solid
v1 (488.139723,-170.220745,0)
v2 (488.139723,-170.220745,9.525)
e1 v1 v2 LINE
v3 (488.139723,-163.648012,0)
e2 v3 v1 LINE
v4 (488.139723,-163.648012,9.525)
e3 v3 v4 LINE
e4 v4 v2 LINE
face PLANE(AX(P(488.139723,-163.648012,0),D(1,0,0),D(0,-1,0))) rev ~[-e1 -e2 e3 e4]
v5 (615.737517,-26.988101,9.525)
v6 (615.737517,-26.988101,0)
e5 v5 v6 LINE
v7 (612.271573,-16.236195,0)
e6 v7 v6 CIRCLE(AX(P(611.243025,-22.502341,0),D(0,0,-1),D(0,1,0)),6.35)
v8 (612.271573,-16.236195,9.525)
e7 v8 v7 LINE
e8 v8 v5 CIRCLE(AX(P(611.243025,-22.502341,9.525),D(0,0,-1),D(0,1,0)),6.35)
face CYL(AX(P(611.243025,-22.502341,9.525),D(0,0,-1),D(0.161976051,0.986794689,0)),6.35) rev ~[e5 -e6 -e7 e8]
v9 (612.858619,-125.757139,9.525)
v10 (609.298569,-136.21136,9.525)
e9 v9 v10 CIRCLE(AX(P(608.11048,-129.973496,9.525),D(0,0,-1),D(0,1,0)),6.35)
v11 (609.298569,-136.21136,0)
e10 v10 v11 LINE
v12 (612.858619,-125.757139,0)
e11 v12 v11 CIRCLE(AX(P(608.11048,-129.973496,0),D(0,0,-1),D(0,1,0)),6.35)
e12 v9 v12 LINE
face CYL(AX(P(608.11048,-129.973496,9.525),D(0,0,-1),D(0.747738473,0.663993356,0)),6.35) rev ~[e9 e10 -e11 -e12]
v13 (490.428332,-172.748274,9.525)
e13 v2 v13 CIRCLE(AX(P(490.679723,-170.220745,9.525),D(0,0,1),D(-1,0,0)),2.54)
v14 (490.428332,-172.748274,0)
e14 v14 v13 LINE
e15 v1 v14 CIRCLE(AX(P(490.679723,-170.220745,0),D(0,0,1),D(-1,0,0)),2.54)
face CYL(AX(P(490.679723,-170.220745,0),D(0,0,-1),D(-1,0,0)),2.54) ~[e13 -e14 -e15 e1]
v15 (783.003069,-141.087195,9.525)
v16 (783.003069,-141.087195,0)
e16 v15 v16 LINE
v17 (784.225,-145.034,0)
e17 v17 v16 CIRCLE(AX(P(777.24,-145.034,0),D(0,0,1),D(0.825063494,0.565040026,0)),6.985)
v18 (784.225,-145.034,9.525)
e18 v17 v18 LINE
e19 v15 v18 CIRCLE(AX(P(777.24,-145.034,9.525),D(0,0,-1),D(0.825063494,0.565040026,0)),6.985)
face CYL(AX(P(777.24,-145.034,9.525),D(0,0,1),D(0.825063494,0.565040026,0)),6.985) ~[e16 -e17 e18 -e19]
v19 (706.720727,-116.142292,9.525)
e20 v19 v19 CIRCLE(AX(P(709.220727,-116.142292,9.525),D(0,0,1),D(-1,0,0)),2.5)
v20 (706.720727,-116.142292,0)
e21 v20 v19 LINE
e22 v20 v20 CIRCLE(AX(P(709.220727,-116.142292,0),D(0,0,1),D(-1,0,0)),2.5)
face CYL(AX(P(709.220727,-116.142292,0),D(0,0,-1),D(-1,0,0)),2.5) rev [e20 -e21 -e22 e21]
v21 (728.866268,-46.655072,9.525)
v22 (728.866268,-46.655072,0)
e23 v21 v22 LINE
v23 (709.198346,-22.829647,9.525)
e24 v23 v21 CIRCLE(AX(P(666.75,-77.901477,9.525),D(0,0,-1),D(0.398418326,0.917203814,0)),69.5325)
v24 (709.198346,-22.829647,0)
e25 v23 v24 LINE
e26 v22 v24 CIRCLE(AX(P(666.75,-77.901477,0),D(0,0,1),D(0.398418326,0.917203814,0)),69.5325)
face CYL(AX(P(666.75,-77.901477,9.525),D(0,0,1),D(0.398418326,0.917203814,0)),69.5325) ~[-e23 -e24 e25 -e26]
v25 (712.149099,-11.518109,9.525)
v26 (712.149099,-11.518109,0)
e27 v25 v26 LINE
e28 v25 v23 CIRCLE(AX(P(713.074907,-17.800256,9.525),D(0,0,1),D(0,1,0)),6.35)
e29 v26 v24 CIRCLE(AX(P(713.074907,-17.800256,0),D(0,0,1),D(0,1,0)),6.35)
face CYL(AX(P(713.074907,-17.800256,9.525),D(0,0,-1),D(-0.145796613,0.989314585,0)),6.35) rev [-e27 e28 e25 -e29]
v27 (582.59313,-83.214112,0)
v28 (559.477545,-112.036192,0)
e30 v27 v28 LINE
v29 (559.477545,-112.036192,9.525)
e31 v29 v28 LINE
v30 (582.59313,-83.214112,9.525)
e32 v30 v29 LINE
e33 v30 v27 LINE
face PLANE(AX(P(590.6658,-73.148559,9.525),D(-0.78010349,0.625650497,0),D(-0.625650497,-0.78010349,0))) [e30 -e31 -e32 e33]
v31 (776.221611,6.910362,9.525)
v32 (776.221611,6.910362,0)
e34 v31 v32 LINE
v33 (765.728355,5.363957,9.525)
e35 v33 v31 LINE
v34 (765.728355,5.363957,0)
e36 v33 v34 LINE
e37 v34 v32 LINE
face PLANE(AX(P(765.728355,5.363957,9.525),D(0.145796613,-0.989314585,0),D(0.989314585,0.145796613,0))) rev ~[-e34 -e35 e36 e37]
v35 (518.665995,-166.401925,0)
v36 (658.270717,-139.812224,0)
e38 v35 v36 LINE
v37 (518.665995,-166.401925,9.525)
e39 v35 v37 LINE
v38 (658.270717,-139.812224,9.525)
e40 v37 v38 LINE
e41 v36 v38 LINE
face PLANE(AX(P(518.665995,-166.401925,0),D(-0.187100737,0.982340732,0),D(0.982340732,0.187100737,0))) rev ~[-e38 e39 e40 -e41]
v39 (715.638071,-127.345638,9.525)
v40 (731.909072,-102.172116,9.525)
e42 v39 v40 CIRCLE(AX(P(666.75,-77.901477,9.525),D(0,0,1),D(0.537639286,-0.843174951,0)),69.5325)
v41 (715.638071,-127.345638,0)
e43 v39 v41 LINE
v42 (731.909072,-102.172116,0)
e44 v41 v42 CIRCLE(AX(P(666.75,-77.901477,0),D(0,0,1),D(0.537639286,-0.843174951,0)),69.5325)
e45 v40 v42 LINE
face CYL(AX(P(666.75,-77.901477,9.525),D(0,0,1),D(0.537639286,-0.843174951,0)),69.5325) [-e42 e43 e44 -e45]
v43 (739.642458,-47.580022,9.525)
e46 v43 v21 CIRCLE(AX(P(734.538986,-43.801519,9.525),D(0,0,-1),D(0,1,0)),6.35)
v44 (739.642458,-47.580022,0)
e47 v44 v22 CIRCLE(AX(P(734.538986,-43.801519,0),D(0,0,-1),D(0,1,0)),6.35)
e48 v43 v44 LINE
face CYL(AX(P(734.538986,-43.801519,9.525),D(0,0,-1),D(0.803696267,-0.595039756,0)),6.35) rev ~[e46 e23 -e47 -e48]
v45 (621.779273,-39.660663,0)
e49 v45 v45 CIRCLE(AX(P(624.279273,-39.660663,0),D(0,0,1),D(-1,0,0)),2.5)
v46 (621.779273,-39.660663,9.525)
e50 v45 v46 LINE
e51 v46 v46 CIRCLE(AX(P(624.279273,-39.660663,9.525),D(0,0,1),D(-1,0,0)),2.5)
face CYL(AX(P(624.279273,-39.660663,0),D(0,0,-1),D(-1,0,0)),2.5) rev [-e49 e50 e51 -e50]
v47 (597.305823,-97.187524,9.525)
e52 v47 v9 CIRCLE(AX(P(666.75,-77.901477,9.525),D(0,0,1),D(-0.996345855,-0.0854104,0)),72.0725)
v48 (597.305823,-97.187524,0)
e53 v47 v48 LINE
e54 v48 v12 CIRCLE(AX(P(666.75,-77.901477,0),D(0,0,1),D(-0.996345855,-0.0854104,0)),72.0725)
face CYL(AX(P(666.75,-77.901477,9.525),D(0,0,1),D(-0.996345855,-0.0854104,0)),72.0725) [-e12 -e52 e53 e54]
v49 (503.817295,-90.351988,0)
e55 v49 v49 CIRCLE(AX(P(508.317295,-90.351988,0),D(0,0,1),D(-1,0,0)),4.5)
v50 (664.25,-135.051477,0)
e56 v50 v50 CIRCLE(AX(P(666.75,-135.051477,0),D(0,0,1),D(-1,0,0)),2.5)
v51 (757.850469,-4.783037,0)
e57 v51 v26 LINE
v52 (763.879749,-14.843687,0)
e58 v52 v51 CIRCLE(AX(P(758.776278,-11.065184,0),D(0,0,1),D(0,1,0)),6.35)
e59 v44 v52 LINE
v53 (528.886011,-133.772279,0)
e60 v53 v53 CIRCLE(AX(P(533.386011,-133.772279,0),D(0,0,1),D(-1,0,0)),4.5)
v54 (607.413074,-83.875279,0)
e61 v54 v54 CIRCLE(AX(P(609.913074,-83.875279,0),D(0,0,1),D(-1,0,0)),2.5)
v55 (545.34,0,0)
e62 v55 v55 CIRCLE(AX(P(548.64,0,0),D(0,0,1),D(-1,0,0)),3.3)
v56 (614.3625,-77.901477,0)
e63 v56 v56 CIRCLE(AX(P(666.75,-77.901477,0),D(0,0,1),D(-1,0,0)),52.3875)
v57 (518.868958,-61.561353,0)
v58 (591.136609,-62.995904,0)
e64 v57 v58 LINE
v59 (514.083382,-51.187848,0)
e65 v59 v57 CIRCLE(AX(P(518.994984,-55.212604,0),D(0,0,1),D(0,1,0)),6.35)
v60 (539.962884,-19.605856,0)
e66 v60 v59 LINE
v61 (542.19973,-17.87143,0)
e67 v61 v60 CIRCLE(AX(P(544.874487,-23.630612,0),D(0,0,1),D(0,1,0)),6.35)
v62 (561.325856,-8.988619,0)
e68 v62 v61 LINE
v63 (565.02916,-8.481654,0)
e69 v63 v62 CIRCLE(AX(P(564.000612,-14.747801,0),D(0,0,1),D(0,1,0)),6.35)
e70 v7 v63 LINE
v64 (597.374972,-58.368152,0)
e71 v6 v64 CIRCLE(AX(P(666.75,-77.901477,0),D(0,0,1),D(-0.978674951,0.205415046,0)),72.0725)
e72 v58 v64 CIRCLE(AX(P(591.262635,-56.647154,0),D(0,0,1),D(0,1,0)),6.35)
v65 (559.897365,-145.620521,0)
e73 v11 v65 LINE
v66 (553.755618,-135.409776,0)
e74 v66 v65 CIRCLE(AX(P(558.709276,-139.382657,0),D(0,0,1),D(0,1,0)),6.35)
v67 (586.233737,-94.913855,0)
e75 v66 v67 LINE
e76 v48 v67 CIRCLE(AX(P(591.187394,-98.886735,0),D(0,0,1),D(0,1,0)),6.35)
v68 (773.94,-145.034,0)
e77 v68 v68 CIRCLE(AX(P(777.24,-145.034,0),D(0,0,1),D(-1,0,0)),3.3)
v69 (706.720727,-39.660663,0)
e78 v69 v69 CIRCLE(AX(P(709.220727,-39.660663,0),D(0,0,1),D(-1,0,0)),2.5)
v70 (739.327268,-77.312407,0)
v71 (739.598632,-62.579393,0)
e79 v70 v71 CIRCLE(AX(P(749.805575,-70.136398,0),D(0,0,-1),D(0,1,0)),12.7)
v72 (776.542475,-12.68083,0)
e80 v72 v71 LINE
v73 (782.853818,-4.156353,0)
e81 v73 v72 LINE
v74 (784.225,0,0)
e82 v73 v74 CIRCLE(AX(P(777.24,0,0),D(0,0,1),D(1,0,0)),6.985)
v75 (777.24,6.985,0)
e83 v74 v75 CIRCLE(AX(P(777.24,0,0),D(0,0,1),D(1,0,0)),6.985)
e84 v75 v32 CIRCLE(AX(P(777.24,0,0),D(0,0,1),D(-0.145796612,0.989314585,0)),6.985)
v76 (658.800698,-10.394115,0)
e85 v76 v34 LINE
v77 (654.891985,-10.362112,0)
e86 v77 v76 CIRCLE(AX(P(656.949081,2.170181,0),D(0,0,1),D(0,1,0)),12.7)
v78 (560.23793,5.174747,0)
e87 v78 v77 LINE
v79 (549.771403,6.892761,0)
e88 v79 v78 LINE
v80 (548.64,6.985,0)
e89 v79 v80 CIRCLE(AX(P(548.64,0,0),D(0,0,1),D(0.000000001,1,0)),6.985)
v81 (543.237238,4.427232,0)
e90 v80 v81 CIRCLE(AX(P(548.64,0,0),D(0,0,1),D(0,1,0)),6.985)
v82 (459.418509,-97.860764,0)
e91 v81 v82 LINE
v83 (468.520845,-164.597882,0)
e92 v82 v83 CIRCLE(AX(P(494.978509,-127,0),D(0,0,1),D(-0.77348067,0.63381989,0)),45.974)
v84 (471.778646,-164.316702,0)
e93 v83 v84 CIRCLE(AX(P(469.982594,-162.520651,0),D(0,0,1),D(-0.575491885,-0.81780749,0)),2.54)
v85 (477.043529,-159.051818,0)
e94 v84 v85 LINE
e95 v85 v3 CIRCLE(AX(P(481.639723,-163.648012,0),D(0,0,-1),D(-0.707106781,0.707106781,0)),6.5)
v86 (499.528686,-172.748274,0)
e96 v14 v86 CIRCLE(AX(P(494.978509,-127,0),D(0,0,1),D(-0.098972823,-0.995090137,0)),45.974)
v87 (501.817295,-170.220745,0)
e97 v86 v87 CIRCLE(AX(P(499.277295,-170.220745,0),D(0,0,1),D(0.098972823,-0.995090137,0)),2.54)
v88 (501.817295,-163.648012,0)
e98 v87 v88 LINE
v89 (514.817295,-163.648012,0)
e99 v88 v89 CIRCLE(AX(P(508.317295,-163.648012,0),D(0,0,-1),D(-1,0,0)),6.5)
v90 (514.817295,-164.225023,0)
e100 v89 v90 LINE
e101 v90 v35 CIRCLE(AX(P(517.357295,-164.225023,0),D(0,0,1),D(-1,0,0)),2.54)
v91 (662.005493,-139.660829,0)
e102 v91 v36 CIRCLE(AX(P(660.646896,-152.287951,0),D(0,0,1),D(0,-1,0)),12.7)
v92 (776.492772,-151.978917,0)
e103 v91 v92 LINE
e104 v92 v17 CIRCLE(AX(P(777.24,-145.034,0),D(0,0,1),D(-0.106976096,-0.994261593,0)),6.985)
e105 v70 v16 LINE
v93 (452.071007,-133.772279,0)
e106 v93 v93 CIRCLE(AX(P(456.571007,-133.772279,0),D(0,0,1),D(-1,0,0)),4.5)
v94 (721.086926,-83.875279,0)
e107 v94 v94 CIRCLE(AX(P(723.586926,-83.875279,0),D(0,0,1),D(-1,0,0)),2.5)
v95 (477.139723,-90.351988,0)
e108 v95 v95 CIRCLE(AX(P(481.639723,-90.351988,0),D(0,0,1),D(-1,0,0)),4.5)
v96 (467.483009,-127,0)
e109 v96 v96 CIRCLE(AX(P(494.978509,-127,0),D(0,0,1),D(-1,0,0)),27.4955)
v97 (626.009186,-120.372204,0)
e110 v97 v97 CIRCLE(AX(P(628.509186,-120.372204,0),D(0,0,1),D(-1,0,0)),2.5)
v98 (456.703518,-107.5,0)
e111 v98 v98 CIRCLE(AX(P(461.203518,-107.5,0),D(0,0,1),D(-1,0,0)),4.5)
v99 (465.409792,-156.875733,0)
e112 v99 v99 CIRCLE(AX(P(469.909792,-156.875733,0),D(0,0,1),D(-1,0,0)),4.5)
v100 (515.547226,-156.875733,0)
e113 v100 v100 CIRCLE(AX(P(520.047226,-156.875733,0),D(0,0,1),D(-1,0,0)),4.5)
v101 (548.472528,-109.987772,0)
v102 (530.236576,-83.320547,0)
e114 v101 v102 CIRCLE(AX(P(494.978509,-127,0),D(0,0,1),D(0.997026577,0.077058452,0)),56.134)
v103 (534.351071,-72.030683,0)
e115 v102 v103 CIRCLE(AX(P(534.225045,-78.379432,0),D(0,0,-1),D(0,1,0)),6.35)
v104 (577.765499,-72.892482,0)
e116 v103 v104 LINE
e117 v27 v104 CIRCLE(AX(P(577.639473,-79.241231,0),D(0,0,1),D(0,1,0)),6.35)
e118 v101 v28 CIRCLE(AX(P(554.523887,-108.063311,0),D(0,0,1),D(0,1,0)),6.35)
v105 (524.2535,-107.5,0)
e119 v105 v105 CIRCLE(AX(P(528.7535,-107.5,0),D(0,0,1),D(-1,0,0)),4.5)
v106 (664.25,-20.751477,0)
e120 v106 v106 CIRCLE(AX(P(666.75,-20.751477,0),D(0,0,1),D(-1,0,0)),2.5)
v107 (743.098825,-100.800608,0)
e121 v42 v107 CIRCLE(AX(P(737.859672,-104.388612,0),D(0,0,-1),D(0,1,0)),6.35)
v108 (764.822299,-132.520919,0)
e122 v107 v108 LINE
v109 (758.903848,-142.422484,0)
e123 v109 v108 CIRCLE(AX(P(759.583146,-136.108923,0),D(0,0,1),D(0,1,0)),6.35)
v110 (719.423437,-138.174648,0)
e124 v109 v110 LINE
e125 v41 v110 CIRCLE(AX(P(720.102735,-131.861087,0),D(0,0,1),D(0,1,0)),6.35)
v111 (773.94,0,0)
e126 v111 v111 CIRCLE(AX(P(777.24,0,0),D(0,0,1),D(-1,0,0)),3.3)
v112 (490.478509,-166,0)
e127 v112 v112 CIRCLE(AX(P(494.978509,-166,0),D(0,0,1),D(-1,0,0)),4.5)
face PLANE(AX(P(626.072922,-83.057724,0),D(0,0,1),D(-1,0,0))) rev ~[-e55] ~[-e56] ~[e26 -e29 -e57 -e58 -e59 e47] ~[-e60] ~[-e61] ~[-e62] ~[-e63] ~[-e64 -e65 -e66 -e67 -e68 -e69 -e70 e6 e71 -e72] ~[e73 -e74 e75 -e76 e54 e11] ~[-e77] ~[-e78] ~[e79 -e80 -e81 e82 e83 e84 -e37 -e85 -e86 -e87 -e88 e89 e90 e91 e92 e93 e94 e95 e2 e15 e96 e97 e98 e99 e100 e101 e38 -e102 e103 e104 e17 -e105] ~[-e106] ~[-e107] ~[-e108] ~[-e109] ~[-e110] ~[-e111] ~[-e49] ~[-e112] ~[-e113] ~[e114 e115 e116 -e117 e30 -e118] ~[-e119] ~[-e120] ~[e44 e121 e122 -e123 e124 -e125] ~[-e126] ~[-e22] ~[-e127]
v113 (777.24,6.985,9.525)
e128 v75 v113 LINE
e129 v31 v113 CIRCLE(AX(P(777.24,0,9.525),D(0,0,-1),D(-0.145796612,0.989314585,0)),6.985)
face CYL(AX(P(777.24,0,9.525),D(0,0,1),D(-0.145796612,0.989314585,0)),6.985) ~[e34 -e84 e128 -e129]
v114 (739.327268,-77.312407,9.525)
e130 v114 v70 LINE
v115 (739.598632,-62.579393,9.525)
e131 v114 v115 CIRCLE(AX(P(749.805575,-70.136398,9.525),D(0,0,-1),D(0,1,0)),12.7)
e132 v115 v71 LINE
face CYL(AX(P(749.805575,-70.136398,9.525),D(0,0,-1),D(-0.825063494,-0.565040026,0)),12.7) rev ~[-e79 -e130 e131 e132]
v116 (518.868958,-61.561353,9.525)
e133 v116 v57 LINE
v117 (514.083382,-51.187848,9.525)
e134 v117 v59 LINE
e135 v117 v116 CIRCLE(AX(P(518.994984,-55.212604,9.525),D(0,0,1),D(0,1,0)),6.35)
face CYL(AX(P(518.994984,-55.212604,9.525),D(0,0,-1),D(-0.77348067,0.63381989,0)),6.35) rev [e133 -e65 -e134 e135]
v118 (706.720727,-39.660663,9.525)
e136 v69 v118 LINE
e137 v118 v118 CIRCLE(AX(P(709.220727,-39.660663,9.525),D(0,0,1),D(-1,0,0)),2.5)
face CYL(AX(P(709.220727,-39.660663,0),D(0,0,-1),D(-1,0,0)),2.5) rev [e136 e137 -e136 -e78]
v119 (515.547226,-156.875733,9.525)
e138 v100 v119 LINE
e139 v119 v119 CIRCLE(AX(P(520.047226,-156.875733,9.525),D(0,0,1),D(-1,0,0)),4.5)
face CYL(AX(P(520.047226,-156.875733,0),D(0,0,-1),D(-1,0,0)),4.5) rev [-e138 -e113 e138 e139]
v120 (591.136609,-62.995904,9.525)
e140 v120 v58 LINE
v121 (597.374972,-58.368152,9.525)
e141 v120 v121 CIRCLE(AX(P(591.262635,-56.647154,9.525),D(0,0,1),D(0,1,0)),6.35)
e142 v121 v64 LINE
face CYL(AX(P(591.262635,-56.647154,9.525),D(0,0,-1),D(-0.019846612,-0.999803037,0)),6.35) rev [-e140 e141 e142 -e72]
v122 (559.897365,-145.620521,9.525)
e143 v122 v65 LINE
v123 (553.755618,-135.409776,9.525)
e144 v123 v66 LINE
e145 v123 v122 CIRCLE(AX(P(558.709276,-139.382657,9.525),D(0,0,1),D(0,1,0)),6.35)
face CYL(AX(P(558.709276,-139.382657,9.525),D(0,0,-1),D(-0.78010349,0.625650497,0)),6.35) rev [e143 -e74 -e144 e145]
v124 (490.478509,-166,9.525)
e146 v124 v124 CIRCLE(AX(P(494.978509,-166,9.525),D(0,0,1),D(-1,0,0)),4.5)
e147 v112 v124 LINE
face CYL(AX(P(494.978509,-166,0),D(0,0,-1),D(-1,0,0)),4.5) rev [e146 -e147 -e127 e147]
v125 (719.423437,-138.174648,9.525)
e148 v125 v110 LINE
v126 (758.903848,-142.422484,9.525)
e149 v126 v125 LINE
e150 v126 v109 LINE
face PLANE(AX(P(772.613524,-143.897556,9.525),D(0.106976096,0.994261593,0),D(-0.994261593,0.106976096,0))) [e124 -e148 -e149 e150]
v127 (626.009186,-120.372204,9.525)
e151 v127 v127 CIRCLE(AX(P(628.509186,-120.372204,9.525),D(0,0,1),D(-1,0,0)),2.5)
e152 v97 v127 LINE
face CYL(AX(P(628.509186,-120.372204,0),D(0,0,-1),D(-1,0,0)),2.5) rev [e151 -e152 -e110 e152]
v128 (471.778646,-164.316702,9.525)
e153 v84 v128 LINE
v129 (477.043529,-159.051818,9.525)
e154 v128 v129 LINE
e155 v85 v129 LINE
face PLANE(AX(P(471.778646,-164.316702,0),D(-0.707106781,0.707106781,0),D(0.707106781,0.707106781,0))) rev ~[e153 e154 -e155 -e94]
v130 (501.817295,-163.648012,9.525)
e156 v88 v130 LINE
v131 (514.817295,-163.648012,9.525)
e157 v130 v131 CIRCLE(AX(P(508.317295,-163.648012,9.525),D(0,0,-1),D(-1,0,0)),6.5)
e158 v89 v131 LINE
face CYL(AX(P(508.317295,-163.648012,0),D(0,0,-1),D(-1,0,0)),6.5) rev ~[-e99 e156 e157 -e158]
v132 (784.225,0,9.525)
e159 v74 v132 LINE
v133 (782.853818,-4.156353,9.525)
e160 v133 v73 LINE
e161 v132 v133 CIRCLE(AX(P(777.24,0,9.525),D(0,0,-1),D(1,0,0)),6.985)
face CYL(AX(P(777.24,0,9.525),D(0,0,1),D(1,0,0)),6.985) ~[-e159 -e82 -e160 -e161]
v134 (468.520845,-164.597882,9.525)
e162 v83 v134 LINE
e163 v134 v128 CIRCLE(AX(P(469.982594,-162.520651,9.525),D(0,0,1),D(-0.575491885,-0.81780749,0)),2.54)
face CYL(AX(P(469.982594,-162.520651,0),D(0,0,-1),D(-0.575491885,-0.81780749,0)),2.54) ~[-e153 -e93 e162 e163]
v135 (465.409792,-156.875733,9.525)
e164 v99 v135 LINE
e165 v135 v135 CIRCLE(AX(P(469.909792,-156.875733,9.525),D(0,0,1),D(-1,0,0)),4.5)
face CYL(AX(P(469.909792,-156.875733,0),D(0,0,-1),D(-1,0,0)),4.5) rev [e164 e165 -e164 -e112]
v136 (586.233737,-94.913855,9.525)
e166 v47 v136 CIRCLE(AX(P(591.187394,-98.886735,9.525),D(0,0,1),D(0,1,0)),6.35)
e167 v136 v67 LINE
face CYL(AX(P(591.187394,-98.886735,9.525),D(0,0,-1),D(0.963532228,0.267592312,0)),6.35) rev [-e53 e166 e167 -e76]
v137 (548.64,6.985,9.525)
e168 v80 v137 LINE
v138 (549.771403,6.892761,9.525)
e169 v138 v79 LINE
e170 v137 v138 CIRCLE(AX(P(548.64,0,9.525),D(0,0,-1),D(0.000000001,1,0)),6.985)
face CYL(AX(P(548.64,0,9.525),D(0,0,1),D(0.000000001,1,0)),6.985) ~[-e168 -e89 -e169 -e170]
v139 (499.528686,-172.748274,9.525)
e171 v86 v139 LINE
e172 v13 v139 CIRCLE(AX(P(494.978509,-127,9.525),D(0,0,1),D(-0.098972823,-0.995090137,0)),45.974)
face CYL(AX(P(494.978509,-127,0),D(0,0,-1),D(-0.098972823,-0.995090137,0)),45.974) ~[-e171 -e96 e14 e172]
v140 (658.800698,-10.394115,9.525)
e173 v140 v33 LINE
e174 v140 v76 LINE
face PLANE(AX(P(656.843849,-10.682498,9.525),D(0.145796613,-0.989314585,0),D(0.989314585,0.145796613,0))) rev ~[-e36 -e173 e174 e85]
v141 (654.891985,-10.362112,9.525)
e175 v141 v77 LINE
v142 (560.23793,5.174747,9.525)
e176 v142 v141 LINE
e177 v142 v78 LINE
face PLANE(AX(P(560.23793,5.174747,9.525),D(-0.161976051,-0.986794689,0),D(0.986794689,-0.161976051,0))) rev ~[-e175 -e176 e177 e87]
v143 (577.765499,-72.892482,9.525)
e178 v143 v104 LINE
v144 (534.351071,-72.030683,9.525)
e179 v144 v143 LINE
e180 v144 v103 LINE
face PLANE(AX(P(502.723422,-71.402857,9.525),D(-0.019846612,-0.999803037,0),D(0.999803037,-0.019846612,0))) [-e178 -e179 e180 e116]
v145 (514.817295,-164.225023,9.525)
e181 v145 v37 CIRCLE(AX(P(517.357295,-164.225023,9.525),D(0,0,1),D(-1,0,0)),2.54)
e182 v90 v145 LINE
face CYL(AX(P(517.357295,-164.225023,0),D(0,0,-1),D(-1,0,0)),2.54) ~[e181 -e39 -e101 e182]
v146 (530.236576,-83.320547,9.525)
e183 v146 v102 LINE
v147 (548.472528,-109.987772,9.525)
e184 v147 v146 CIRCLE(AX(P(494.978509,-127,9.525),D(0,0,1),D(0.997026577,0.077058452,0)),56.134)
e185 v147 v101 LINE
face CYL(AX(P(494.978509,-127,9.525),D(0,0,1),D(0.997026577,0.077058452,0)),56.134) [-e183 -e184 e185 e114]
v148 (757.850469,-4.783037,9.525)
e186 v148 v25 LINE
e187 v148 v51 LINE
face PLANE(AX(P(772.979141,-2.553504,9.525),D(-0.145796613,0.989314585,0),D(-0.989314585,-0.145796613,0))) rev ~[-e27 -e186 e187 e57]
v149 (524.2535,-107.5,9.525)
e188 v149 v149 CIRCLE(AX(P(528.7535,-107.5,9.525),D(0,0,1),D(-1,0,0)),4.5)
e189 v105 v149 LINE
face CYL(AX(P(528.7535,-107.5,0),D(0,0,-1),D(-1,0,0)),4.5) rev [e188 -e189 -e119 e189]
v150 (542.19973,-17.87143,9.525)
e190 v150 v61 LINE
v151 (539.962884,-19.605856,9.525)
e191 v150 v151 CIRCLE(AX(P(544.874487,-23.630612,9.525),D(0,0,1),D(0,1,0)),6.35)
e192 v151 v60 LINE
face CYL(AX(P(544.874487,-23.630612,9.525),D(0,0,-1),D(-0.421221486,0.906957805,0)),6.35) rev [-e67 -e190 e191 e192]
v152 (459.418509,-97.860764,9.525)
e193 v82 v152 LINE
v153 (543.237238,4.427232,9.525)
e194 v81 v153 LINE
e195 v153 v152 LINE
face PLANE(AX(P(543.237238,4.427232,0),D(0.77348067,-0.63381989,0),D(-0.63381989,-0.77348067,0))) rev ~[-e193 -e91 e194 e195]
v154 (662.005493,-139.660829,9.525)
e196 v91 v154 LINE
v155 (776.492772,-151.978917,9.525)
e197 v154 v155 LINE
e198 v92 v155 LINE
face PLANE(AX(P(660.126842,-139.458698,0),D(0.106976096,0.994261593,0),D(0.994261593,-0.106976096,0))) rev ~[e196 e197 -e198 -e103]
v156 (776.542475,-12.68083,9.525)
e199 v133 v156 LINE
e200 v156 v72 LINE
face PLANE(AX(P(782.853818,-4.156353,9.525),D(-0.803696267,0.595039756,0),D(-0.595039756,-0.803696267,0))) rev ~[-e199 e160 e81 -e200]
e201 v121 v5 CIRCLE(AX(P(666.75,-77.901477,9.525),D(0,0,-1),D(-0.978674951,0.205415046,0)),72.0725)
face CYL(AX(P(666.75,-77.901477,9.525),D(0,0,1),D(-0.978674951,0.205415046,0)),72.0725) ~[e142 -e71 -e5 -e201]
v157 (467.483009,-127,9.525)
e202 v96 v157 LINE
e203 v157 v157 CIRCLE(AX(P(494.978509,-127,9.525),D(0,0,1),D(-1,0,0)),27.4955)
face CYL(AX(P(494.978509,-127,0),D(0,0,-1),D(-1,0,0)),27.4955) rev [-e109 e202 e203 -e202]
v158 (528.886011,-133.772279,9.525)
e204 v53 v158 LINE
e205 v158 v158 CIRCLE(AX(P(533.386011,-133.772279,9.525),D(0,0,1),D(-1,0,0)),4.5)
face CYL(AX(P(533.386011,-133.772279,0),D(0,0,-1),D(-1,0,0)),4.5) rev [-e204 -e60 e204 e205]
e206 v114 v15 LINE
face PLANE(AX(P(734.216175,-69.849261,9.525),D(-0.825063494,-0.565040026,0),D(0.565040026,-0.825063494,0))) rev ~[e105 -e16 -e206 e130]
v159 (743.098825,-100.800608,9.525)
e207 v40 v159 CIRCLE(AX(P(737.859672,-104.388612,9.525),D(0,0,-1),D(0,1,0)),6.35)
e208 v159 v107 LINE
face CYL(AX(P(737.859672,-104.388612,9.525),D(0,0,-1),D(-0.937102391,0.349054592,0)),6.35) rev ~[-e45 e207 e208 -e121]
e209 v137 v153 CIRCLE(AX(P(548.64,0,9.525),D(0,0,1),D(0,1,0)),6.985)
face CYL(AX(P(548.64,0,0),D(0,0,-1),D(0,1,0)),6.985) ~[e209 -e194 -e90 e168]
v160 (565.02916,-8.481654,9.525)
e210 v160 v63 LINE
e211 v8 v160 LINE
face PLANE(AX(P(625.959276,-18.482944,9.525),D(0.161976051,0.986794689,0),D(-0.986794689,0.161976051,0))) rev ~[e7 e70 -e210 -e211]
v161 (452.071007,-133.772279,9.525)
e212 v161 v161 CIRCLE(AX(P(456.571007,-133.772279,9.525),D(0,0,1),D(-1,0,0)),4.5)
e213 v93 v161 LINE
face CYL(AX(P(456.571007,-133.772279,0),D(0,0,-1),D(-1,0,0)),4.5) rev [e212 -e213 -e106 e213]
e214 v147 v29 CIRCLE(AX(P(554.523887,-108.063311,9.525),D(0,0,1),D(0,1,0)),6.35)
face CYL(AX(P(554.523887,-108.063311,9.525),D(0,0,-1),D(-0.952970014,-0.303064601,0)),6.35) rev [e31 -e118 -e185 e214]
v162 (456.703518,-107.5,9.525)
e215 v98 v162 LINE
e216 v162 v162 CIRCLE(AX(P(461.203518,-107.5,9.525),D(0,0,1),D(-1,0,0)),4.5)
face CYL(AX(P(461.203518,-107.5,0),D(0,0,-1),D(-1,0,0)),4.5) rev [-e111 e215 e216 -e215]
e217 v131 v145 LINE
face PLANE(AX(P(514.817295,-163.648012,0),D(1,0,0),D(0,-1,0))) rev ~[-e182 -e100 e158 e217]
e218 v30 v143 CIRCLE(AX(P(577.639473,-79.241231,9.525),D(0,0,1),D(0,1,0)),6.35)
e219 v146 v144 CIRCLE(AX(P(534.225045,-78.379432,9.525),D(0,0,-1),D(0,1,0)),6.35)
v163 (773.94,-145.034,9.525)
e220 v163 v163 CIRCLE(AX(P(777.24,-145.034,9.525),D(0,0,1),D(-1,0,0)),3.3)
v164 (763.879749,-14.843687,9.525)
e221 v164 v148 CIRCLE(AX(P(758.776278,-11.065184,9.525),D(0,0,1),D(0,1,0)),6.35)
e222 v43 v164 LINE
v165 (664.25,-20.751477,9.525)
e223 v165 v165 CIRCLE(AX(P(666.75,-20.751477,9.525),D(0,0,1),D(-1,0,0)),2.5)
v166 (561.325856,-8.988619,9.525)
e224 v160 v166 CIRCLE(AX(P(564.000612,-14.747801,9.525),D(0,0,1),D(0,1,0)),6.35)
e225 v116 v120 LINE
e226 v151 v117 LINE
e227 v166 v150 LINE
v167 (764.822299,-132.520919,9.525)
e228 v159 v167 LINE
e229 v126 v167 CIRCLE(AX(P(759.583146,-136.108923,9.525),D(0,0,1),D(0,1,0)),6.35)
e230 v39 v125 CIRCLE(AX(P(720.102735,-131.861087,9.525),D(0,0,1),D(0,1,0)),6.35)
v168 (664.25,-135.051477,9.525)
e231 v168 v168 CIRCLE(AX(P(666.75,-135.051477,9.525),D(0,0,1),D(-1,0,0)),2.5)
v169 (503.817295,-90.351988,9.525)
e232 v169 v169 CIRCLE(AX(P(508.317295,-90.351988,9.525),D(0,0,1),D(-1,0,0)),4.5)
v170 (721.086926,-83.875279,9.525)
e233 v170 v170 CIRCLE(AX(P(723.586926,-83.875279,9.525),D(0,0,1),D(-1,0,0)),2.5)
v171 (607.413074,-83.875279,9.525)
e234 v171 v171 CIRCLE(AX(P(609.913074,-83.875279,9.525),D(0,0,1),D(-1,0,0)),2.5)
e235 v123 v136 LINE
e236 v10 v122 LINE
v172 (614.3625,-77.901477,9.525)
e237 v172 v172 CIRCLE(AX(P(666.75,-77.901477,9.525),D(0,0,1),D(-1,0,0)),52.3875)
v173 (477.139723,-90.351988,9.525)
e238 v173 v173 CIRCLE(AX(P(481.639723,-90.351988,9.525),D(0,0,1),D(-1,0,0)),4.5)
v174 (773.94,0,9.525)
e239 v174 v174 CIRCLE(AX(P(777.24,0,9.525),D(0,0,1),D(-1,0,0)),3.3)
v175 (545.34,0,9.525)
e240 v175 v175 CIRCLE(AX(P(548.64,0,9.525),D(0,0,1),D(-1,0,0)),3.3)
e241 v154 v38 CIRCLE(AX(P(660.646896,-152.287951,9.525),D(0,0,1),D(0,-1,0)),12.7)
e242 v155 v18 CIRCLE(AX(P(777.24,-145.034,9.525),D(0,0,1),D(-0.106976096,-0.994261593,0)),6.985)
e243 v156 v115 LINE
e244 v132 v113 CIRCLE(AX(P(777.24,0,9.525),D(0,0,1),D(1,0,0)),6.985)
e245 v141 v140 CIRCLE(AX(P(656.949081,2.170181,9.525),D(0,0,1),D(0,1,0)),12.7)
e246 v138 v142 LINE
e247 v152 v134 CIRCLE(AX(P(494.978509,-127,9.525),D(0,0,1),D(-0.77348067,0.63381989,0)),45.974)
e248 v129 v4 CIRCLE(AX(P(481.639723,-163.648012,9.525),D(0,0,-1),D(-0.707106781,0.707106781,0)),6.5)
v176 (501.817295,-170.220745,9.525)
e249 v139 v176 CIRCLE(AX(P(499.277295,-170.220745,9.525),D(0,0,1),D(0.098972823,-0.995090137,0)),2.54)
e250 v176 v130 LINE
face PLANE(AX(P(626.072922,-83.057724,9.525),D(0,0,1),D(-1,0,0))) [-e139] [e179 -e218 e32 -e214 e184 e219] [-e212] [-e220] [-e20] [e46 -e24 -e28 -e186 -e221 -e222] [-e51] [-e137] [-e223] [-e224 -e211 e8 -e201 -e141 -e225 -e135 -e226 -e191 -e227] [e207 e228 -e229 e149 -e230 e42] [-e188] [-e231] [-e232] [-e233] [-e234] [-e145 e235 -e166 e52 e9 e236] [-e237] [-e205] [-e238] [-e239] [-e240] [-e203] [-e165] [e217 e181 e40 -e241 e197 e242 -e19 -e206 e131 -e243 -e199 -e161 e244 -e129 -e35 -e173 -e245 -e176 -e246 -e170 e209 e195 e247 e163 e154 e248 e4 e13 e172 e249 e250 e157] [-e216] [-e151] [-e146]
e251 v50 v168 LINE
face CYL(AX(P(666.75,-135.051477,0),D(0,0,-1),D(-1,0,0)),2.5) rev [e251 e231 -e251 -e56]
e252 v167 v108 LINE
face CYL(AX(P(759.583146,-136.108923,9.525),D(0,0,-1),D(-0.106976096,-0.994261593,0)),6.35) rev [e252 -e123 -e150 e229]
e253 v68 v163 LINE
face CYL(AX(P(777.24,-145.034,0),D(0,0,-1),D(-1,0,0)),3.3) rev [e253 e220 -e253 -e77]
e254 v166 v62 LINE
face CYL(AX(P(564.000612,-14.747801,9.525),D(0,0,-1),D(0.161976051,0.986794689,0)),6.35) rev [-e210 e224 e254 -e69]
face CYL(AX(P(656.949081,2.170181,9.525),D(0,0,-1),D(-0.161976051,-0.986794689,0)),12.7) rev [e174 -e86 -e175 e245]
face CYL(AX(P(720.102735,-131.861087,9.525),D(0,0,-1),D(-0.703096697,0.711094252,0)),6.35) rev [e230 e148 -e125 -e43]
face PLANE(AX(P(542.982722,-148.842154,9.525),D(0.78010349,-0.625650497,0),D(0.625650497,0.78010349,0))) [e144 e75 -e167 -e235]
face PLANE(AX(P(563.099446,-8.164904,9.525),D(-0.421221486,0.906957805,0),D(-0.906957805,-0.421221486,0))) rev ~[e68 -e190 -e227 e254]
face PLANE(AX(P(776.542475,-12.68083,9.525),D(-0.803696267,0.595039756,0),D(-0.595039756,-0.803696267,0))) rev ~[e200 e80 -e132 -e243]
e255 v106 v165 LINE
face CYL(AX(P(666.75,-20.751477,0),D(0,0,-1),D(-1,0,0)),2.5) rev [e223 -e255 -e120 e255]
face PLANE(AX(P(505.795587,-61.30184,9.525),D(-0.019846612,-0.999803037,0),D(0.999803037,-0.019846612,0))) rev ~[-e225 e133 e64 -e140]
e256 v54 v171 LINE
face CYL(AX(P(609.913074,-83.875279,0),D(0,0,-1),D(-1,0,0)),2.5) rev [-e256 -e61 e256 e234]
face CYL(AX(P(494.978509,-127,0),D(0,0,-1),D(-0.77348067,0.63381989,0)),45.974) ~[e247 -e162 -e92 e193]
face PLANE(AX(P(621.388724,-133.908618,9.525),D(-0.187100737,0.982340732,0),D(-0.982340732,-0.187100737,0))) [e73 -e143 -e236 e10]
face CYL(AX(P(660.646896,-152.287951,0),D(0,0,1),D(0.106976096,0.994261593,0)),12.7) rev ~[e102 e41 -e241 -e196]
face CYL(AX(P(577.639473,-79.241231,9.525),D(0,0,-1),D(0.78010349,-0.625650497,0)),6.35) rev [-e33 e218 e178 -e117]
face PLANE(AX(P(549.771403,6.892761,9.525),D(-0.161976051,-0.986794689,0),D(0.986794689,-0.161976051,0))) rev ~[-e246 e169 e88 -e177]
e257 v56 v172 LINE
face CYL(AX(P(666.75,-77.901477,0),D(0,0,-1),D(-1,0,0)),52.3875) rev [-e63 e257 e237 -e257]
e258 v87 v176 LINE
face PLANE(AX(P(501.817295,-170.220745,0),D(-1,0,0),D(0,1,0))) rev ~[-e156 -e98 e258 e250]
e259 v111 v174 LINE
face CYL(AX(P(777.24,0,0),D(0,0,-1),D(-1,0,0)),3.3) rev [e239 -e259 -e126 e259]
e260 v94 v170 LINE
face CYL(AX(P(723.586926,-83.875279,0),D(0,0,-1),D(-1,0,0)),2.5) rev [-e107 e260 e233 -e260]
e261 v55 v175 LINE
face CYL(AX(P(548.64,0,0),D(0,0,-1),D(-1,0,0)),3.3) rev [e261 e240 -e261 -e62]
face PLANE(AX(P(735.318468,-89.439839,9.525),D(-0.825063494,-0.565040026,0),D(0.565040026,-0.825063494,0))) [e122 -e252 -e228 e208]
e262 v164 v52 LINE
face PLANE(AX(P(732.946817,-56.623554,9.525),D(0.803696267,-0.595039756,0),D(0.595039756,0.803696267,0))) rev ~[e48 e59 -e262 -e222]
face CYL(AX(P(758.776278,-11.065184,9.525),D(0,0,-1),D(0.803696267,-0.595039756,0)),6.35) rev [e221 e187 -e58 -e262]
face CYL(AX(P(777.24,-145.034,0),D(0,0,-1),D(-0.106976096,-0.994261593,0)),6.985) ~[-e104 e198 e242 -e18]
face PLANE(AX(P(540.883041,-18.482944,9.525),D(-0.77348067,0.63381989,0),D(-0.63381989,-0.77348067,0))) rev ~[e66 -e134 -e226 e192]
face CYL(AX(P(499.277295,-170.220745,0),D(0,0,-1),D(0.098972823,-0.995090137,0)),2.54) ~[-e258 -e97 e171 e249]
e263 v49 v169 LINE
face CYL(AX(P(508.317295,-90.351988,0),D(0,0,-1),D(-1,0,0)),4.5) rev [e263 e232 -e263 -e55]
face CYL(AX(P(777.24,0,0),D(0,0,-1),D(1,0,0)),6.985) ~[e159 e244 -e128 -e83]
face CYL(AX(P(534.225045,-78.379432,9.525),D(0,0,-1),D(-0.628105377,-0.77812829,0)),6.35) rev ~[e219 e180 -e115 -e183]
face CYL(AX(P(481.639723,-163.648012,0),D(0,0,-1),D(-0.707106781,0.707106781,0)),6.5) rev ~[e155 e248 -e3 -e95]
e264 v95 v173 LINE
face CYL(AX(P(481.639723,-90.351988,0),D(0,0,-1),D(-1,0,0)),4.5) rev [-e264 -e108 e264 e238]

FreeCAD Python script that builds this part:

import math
import FreeCAD as App
import Part
import Sketcher
from FreeCAD import Vector
Q = App.Units.Quantity


def edges_at(feature, points):
    """Names of the edges that pass closest to the given points."""
    edges = feature.Shape.Edges
    near = lambda p: min(range(len(edges)), key=lambda i: edges[i].distToShape(Part.Vertex(*p))[0])
    return sorted({f"Edge{near(p) + 1}" for p in points})

doc = App.newDocument("Part")
body = doc.addObject("PartDesign::Body", "Body")

sketch1 = body.newObject("Sketcher::SketchObject", "Sketch")
sketch1.AttachmentSupport = (doc.getObject("XY_Plane"), [""])
sketch1.MapMode = "FlatFace"
sketch1.addGeometry([
    Part.ArcOfCircle(Part.Circle(Vector(777.24, -145.034, 0), Vector(0, 0, 1), 6.985), math.radians(-96.14103), math.radians(0)),
    Part.LineSegment(Vector(784.225, -145.034, 0), Vector(784.225, 0, 0)),
    Part.ArcOfCircle(Part.Circle(Vector(777.24, 0, 0), Vector(0, 0, 1), 6.985), math.radians(0), math.radians(90)),
    Part.LineSegment(Vector(777.24, 6.985, 0), Vector(548.64, 6.985, 0)),
    Part.ArcOfCircle(Part.Circle(Vector(548.64, 0, 0), Vector(0, 0, 1), 6.985), math.radians(90), math.radians(140.667487)),
    Part.LineSegment(Vector(543.237238, 4.427232, 0), Vector(459.418509, -97.860764, 0)),
    Part.ArcOfCircle(Part.Circle(Vector(494.978509, -127, 0), Vector(0, 0, 1), 45.974), math.radians(140.667487), math.radians(234.865914)),
    Part.ArcOfCircle(Part.Circle(Vector(469.982594, -162.520651, 0), Vector(0, 0, 1), 2.54), math.radians(-125.134086), math.radians(-45)),
    Part.LineSegment(Vector(471.778646, -164.316702, 0), Vector(477.043529, -159.051818, 0)),
    Part.ArcOfCircle(Part.Circle(Vector(481.639723, -163.648012, 0), Vector(0, 0, 1), 6.5), math.radians(0), math.radians(135)),
    Part.LineSegment(Vector(488.139723, -163.648012, 0), Vector(488.139723, -170.220745, 0)),
    Part.ArcOfCircle(Part.Circle(Vector(490.679723, -170.220745, 0), Vector(0, 0, 1), 2.54), math.radians(180), math.radians(264.319976)),
    Part.ArcOfCircle(Part.Circle(Vector(494.978509, -127, 0), Vector(0, 0, 1), 45.974), math.radians(-95.680024), math.radians(-84.319976)),
    Part.ArcOfCircle(Part.Circle(Vector(499.277295, -170.220745, 0), Vector(0, 0, 1), 2.54), math.radians(-84.319976), math.radians(0)),
    Part.LineSegment(Vector(501.817295, -170.220745, 0), Vector(501.817295, -163.648012, 0)),
    Part.ArcOfCircle(Part.Circle(Vector(508.317295, -163.648012, 0), Vector(0, 0, 1), 6.5), math.radians(0), math.radians(180)),
    Part.LineSegment(Vector(514.817295, -163.648012, 0), Vector(514.817295, -164.225023, 0)),
    Part.ArcOfCircle(Part.Circle(Vector(517.357295, -164.225023, 0), Vector(0, 0, 1), 2.54), math.radians(-180), math.radians(-58.98673)),
    Part.LineSegment(Vector(518.665995, -166.401925, 0), Vector(660.126842, -139.458698, 0)),
    Part.LineSegment(Vector(660.126842, -139.458698, 0), Vector(776.492772, -151.978917, 0)),
    Part.Circle(Vector(777.24, 0, 0), Vector(0, 0, 1), 3.3),
    Part.Circle(Vector(709.220727, -39.660663, 0), Vector(0, 0, 1), 2.5),
    Part.Circle(Vector(666.75, -20.751477, 0), Vector(0, 0, 1), 2.5),
    Part.Circle(Vector(624.279273, -39.660663, 0), Vector(0, 0, 1), 2.5),
    Part.Circle(Vector(666.75, -77.901477, 0), Vector(0, 0, 1), 52.3875),
    Part.Circle(Vector(548.64, 0, 0), Vector(0, 0, 1), 3.3),
    Part.Circle(Vector(723.586926, -83.875279, 0), Vector(0, 0, 1), 2.5),
    Part.Circle(Vector(709.220727, -116.142292, 0), Vector(0, 0, 1), 2.5),
    Part.Circle(Vector(628.509186, -120.372204, 0), Vector(0, 0, 1), 2.5),
    Part.Circle(Vector(777.24, -145.034, 0), Vector(0, 0, 1), 3.3),
    Part.Circle(Vector(666.75, -135.051477, 0), Vector(0, 0, 1), 2.5),
    Part.Circle(Vector(609.913074, -83.875279, 0), Vector(0, 0, 1), 2.5),
    Part.Circle(Vector(508.317295, -90.351988, 0), Vector(0, 0, 1), 4.5),
    Part.Circle(Vector(481.639723, -90.351988, 0), Vector(0, 0, 1), 4.5),
    Part.Circle(Vector(528.7535, -107.5, 0), Vector(0, 0, 1), 4.5),
    Part.Circle(Vector(494.978509, -127, 0), Vector(0, 0, 1), 27.4955),
    Part.Circle(Vector(461.203518, -107.5, 0), Vector(0, 0, 1), 4.5),
    Part.Circle(Vector(533.386011, -133.772279, 0), Vector(0, 0, 1), 4.5),
    Part.Circle(Vector(456.571007, -133.772279, 0), Vector(0, 0, 1), 4.5),
    Part.Circle(Vector(520.047226, -156.875733, 0), Vector(0, 0, 1), 4.5),
    Part.Circle(Vector(494.978509, -166, 0), Vector(0, 0, 1), 4.5),
    Part.Circle(Vector(469.909792, -156.875733, 0), Vector(0, 0, 1), 4.5),
], False)
sketch1.addConstraint([
    Sketcher.Constraint("Tangent", 0, 2, 1, 1),
    Sketcher.Constraint("Tangent", 1, 2, 2, 1),
    Sketcher.Constraint("Tangent", 2, 2, 3, 1),
    Sketcher.Constraint("Tangent", 3, 2, 4, 1),
    Sketcher.Constraint("Tangent", 4, 2, 5, 1),
    Sketcher.Constraint("Tangent", 5, 2, 6, 1),
    Sketcher.Constraint("Tangent", 6, 2, 7, 1),
    Sketcher.Constraint("Tangent", 7, 2, 8, 1),
    Sketcher.Constraint("Tangent", 8, 2, 9, 2),
    Sketcher.Constraint("Tangent", 9, 1, 10, 1),
    Sketcher.Constraint("Tangent", 10, 2, 11, 1),
    Sketcher.Constraint("Tangent", 11, 2, 12, 1),
    Sketcher.Constraint("Tangent", 12, 2, 13, 1),
    Sketcher.Constraint("Tangent", 13, 2, 14, 1),
    Sketcher.Constraint("Tangent", 14, 2, 15, 2),
    Sketcher.Constraint("Tangent", 15, 1, 16, 1),
    Sketcher.Constraint("Tangent", 16, 2, 17, 1),
    Sketcher.Constraint("Coincident", 17, 2, 18, 1),
    Sketcher.Constraint("Coincident", 18, 2, 19, 1),
    Sketcher.Constraint("Tangent", 19, 2, 0, 1),
    Sketcher.Constraint("Vertical", 1),
    Sketcher.Constraint("Horizontal", 3),
    Sketcher.Constraint("Vertical", 10),
    Sketcher.Constraint("Vertical", 14),
    Sketcher.Constraint("Vertical", 16),
    Sketcher.Constraint("Coincident", 12, 3, 6, 3),
    Sketcher.Constraint("Coincident", 20, 3, 2, 3),
    Sketcher.Constraint("Coincident", 25, 3, 4, 3),
    Sketcher.Constraint("Coincident", 29, 3, 0, 3),
    Sketcher.Constraint("Coincident", 35, 3, 6, 3),
    Sketcher.Constraint("Equal", 0, 2),
    Sketcher.Constraint("Equal", 2, 4),
    Sketcher.Constraint("Equal", 7, 11),
    Sketcher.Constraint("Equal", 6, 12),
    Sketcher.Constraint("Equal", 11, 13),
    Sketcher.Constraint("Equal", 9, 15),
    Sketcher.Constraint("Equal", 13, 17),
    Sketcher.Constraint("Equal", 21, 22),
    Sketcher.Constraint("Equal", 22, 23),
    Sketcher.Constraint("Equal", 20, 25),
    Sketcher.Constraint("Equal", 23, 26),
    Sketcher.Constraint("Equal", 26, 27),
    Sketcher.Constraint("Equal", 27, 28),
    Sketcher.Constraint("Equal", 25, 29),
    Sketcher.Constraint("Equal", 28, 30),
    Sketcher.Constraint("Equal", 30, 31),
    Sketcher.Constraint("Equal", 32, 33),
    Sketcher.Constraint("Equal", 33, 34),
    Sketcher.Constraint("Equal", 34, 36),
    Sketcher.Constraint("Equal", 36, 37),
    Sketcher.Constraint("Equal", 37, 38),
    Sketcher.Constraint("Equal", 38, 39),
    Sketcher.Constraint("Equal", 39, 40),
    Sketcher.Constraint("Equal", 40, 41),
    Sketcher.Constraint("PointOnObject", 2, 3, -1),
    Sketcher.Constraint("Horizontal", 11, 3, 13, 3),
    Sketcher.Constraint("Horizontal", 9, 3, 15, 3),
    Sketcher.Constraint("Horizontal", 21, 3, 23, 3),
    Sketcher.Constraint("Horizontal", 26, 3, 31, 3),
    Sketcher.Constraint("Horizontal", 32, 3, 33, 3),
    Sketcher.Constraint("Horizontal", 34, 3, 36, 3),
    Sketcher.Constraint("Horizontal", 37, 3, 38, 3),
    Sketcher.Constraint("Horizontal", 39, 3, 41, 3),
    Sketcher.Constraint("Vertical", 22, 3, 24, 3),
    Sketcher.Constraint("Vertical", 21, 3, 27, 3),
    Sketcher.Constraint("Vertical", 24, 3, 30, 3),
    Sketcher.Constraint("Vertical", 15, 3, 32, 3),
    Sketcher.Constraint("Vertical", 9, 3, 33, 3),
    Sketcher.Constraint("Vertical", 35, 3, 40, 3),
    Sketcher.Constraint("Radius", 7, Q("0.1 in")),
    Sketcher.Constraint("DistanceX", 3, 2, 3, 1, Q("9 in")),
    Sketcher.Constraint("Radius", 6, Q("1.81 in")),
    Sketcher.Constraint("Diameter", 24, Q("4.125 in")),
    Sketcher.Constraint("Diameter", 35, Q("2.165 in")),
    Sketcher.Constraint("DistanceY", 6, 3, -1, 1, Q("5 in")),
    Sketcher.Constraint("Angle", 8, Q("45 deg")),
    Sketcher.Constraint("Radius", 0, Q("0.275 in")),
    Sketcher.Constraint("DistanceY", 1, 1, 1, 2, Q("5.71 in")),
    Sketcher.Constraint("DistanceX", -1, 1, 0, 3, Q("30.6 in")),
    Sketcher.Constraint("DistanceX", 5, 2, 12, 3, Q("1.4 in")),
    Sketcher.Constraint("Diameter", 20, 6.6),
    Sketcher.Constraint("Diameter", 21, 5.0),
    Sketcher.Constraint("Diameter", 32, 9.0),
    Sketcher.Constraint("DistanceX", -1, 1, 22, 3, Q("26.25 in")),
    Sketcher.Constraint("Radius", 9, 6.5),
    Sketcher.Constraint("DistanceY", 24, 3, 22, 3, Q("2.25 in")),
    Sketcher.Constraint("DistanceY", 30, 3, 24, 3, Q("2.25 in")),
    Sketcher.Constraint("DistanceY", 18, 2, -1, 1, Q("5.4904999 in")),
    Sketcher.Constraint("DistanceY", 16, 2, 16, 1, 0.57701),
    Sketcher.Constraint("DistanceX", -1, 1, 34, 3, 528.7535),
    Sketcher.Constraint("DistanceY", 34, 3, -1, 1, 107.5),
    Sketcher.Constraint("DistanceY", 40, 3, -1, 1, 166.0),
    Sketcher.Constraint("DistanceY", 7, 2, -1, 1, 164.316702),
    Sketcher.Constraint("DistanceX", 7, 3, 13, 3, 29.2947),
    Sketcher.Constraint("DistanceX", 21, 3, 26, 3, 14.3662),
    Sketcher.Constraint("DistanceY", 26, 3, 24, 3, 5.973802),
    Sketcher.Constraint("DistanceX", 31, 3, 23, 3, 14.3662),
    Sketcher.Constraint("DistanceX", 17, 3, 17, 2, 1.308701),
    Sketcher.Constraint("Distance", 18, 144.003849),
    Sketcher.Constraint("DistanceY", 26, 3, -1, 1, 83.875279),
    Sketcher.Constraint("DistanceY", 27, 3, -1, 1, 116.142292),
    Sketcher.Constraint("DistanceX", -1, 1, 36, 3, 461.203518),
    Sketcher.Constraint("DistanceX", -1, 1, 37, 3, 533.386011),
    Sketcher.Constraint("DistanceY", 37, 3, -1, 1, 133.772279),
    Sketcher.Constraint("DistanceY", 17, 3, 21, 3, 124.564359),
    Sketcher.Constraint("DistanceX", 28, 3, 27, 3, 80.711541),
    Sketcher.Constraint("DistanceY", 28, 3, 23, 3, 80.711541),
    Sketcher.Constraint("DistanceX", 38, 3, 36, 3, 4.632512),
    Sketcher.Constraint("DistanceX", 17, 3, 39, 3, 2.689931),
    Sketcher.Constraint("DistanceY", 17, 3, 39, 3, 7.349289),
    Sketcher.Constraint("DistanceX", 41, 3, 9, 3, 11.729931),
    Sketcher.Constraint("DistanceY", 32, 3, 4, 2, 94.77922),
    Sketcher.Constraint("DistanceX", 31, 3, 18, 2, 50.213769),
    Sketcher.Constraint("DistanceX", -1, 1, 21, 3, 709.220727),
])
pad1 = body.newObject("PartDesign::Pad", "Pad")
pad1.Profile = sketch1
pad1.Length = Q("0.375 in")

sketch2 = body.newObject("Sketcher::SketchObject", "Sketch001")
sketch2.AttachmentSupport = (doc.getObject("XY_Plane"), [""])
sketch2.MapMode = "FlatFace"
sketch2.AttachmentOffset = App.Placement(Vector(0, 0, 0.375 * 25.4), App.Rotation())
sketch2.addGeometry([
    Part.LineSegment(Vector(560.23793, 5.174747, 0), Vector(656.843849, -10.682498, 0)),
    Part.LineSegment(Vector(656.843849, -10.682498, 0), Vector(765.728355, 5.363957, 0)),
    Part.LineSegment(Vector(765.728355, 5.363957, 0), Vector(776.221611, 6.910362, 0)),
    Part.ArcOfCircle(Part.Circle(Vector(777.24, 0, 0), Vector(0, 0, 1), 6.985), math.radians(90), math.radians(98.383412)),
    Part.LineSegment(Vector(777.24, 6.985, 0), Vector(548.64, 6.985, 0)),
    Part.ArcOfCircle(Part.Circle(Vector(548.64, 0, 0), Vector(0, 0, 1), 6.985), math.radians(80.678388), math.radians(90)),
    Part.LineSegment(Vector(549.771403, 6.892761, 0), Vector(560.23793, 5.174747, 0)),
    Part.LineSegment(Vector(776.542475, -12.68083, 0), Vector(734.216175, -69.849261, 0)),
    Part.LineSegment(Vector(734.216175, -69.849261, 0), Vector(783.003069, -141.087195, 0)),
    Part.ArcOfCircle(Part.Circle(Vector(777.24, -145.034, 0), Vector(0, 0, 1), 6.985), math.radians(0), math.radians(34.405071)),
    Part.LineSegment(Vector(784.225, -145.034, 0), Vector(784.225, 0, 0)),
    Part.ArcOfCircle(Part.Circle(Vector(777.24, 0, 0), Vector(0, 0, 1), 6.985), math.radians(-36.515466), math.radians(0)),
    Part.LineSegment(Vector(782.853818, -4.156353, 0), Vector(776.542475, -12.68083, 0)),
], False)
sketch2.addConstraint([
    Sketcher.Constraint("Coincident", 0, 2, 1, 1),
    Sketcher.Constraint("Coincident", 1, 2, 2, 1),
    Sketcher.Constraint("Tangent", 2, 2, 3, 2),
    Sketcher.Constraint("Tangent", 3, 1, 4, 1),
    Sketcher.Constraint("Tangent", 4, 2, 5, 2),
    Sketcher.Constraint("Tangent", 5, 1, 6, 1),
    Sketcher.Constraint("Coincident", 6, 2, 0, 1),
    Sketcher.Constraint("Coincident", 7, 2, 8, 1),
    Sketcher.Constraint("Tangent", 8, 2, 9, 2),
    Sketcher.Constraint("Tangent", 9, 1, 10, 1),
    Sketcher.Constraint("Tangent", 10, 2, 11, 2),
    Sketcher.Constraint("Tangent", 11, 1, 12, 1),
    Sketcher.Constraint("Coincident", 12, 2, 7, 1),
    Sketcher.Constraint("Horizontal", 4),
    Sketcher.Constraint("Vertical", 10),
    Sketcher.Constraint("Coincident", 11, 3, 3, 3),
    Sketcher.Constraint("Equal", 3, 5),
    Sketcher.Constraint("Equal", 5, 9),
    Sketcher.Constraint("Equal", 9, 11),
    Sketcher.Constraint("PointOnObject", 3, 3, -1),
    Sketcher.Constraint("Parallel", 1, 2),
    Sketcher.Constraint("Parallel", 0, 6),
    Sketcher.Constraint("Parallel", 7, 12),
    Sketcher.Constraint("Equal", 2, 6),
    Sketcher.Constraint("Equal", 6, 12),
    Sketcher.Constraint("DistanceX", 4, 2, 4, 1, Q("9 in")),
    Sketcher.Constraint("Radius", 3, Q("0.275 in")),
    Sketcher.Constraint("DistanceY", 10, 1, 10, 2, Q("5.71 in")),
    Sketcher.Constraint("DistanceX", -1, 1, 3, 3, Q("30.6 in")),
    Sketcher.Constraint("Distance", 0, 97.898701),
    Sketcher.Constraint("Distance", 1, 110.060549),
    Sketcher.Constraint("Distance", 2, 10.606591),
    Sketcher.Constraint("DistanceY", 7, 2, -1, 1, 69.849261),
    Sketcher.Constraint("DistanceX", -1, 1, 8, 2, 783.003069),
])
pocket1 = body.newObject("PartDesign::Pocket", "Pocket")
pocket1.Profile = sketch2
pocket1.Type = "ThroughAll"
doc.recompute()

fillet = body.newObject("PartDesign::Fillet", "Fillet")
fillet.Base = (pocket1, edges_at(pocket1, [(734.216, -69.849, 4.763), (656.844, -10.682, 4.763), (660.127, -139.459, 4.763)]))
fillet.Radius = Q("0.5 in")

sketch3 = body.newObject("Sketcher::SketchObject", "Sketch002")
sketch3.AttachmentSupport = (doc.getObject("XY_Plane"), [""])
sketch3.MapMode = "FlatFace"
sketch3.AttachmentOffset = App.Placement(Vector(0, 0, 0.375 * 25.4), App.Rotation())
sketch3.addGeometry([
    Part.LineSegment(Vector(732.946817, -56.623554, 0), Vector(772.979141, -2.553504, 0)),
    Part.LineSegment(Vector(772.979141, -2.553504, 0), Vector(694.453022, -14.126003, 0)),
    Part.ArcOfCircle(Part.Circle(Vector(666.75, -77.901477, 0), Vector(0, 0, 1), 69.5325), math.radians(17.819183), math.radians(66.520662)),
    Part.LineSegment(Vector(772.613524, -143.897556, 0), Vector(735.318468, -89.439839, 0)),
    Part.ArcOfCircle(Part.Circle(Vector(666.75, -77.901477, 0), Vector(0, 0, 1), 69.5325), math.radians(-57.476921), math.radians(-9.551961)),
    Part.LineSegment(Vector(704.133404, -136.52954, 0), Vector(772.613524, -143.897556, 0)),
], False)
sketch3.addConstraint([
    Sketcher.Constraint("Coincident", 0, 2, 1, 1),
    Sketcher.Constraint("Coincident", 1, 2, 2, 2),
    Sketcher.Constraint("Coincident", 2, 1, 0, 1),
    Sketcher.Constraint("Coincident", 3, 2, 4, 2),
    Sketcher.Constraint("Coincident", 4, 1, 5, 1),
    Sketcher.Constraint("Coincident", 5, 2, 3, 1),
    Sketcher.Constraint("Coincident", 4, 3, 2, 3),
    Sketcher.Constraint("Equal", 2, 4),
    Sketcher.Constraint("Radius", 2, Q("2.7375 in")),
    Sketcher.Constraint("DistanceX", -1, 1, 2, 3, Q("26.25 in")),
    Sketcher.Constraint("DistanceY", 1, 2, 0, 2, 11.572499),
    Sketcher.Constraint("DistanceY", 4, 1, 3, 2, 47.0897),
    Sketcher.Constraint("DistanceY", 5, 2, 2, 1, 87.274002),
    Sketcher.Constraint("DistanceX", -1, 1, 0, 2, 772.979141),
    Sketcher.Constraint("DistanceY", 3, 2, -1, 1, 89.439839),
    Sketcher.Constraint("DistanceX", 1, 2, 0, 2, 78.526119),
    Sketcher.Constraint("DistanceY", 2, 1, 1, 2, 42.497551),
    Sketcher.Constraint("DistanceX", 2, 1, 3, 2, 2.371651),
    Sketcher.Constraint("DistanceX", 4, 1, 5, 2, 68.480121),
])
pocket2 = body.newObject("PartDesign::Pocket", "Pocket001")
pocket2.Profile = sketch3
pocket2.Type = "ThroughAll"
doc.recompute()

fillet2 = body.newObject("PartDesign::Fillet", "Fillet001")
fillet2.Base = (pocket2, edges_at(pocket2, [
    (735.318, -89.44, 4.763),
    (772.614, -143.898, 4.763),
    (704.133, -136.53, 4.763),
    (772.979, -2.554, 4.763),
    (732.947, -56.624, 4.763),
    (694.453, -14.126, 4.763),
]))
fillet2.Radius = Q("0.25 in")

sketch4 = body.newObject("Sketcher::SketchObject", "Sketch003")
sketch4.AttachmentSupport = (doc.getObject("XY_Plane"), [""])
sketch4.MapMode = "FlatFace"
sketch4.AttachmentOffset = App.Placement(Vector(0, 0, 0.375 * 25.4), App.Rotation())
sketch4.addGeometry([
    Part.LineSegment(Vector(625.959276, -18.482944, 0), Vector(563.099446, -8.164904, 0)),
    Part.LineSegment(Vector(563.099446, -8.164904, 0), Vector(540.883041, -18.482944, 0)),
    Part.LineSegment(Vector(540.883041, -18.482944, 0), Vector(505.795587, -61.30184, 0)),
    Part.LineSegment(Vector(505.795587, -61.30184, 0), Vector(596.21445, -63.096701, 0)),
    Part.ArcOfCircle(Part.Circle(Vector(666.75, -77.901477, 0), Vector(0, 0, 1), 72.0725), math.radians(124.469533), math.radians(168.146203)),
    Part.LineSegment(Vector(542.982722, -148.842154, 0), Vector(621.388724, -133.908618, 0)),
    Part.ArcOfCircle(Part.Circle(Vector(666.75, -77.901477, 0), Vector(0, 0, 1), 72.0725), math.radians(-175.100375), math.radians(-129.004688)),
    Part.LineSegment(Vector(594.940863, -84.057218, 0), Vector(542.982722, -148.842154, 0)),
    Part.LineSegment(Vector(590.6658, -73.148559, 0), Vector(502.723422, -71.402857, 0)),
    Part.ArcOfCircle(Part.Circle(Vector(494.978509, -127, 0), Vector(0, 0, 1), 56.134), math.radians(4.419505), math.radians(82.069496)),
    Part.LineSegment(Vector(550.945599, -122.674401, 0), Vector(590.6658, -73.148559, 0)),
], False)
sketch4.addConstraint([
    Sketcher.Constraint("Coincident", 0, 2, 1, 1),
    Sketcher.Constraint("Coincident", 1, 2, 2, 1),
    Sketcher.Constraint("Coincident", 2, 2, 3, 1),
    Sketcher.Constraint("Coincident", 3, 2, 4, 2),
    Sketcher.Constraint("Coincident", 4, 1, 0, 1),
    Sketcher.Constraint("Coincident", 5, 2, 6, 2),
    Sketcher.Constraint("Coincident", 6, 1, 7, 1),
    Sketcher.Constraint("Coincident", 7, 2, 5, 1),
    Sketcher.Constraint("Coincident", 8, 2, 9, 2),
    Sketcher.Constraint("Coincident", 9, 1, 10, 1),
    Sketcher.Constraint("Coincident", 10, 2, 8, 1),
    Sketcher.Constraint("Coincident", 6, 3, 4, 3),
    Sketcher.Constraint("Radius", 9, Q("2.21 in")),
    Sketcher.Constraint("DistanceY", 9, 3, -1, 1, Q("5 in")),
    Sketcher.Constraint("Radius", 4, Q("2.8375 in")),
    Sketcher.Constraint("Radius", 6, Q("2.8375 in")),
    Sketcher.Constraint("DistanceX", -1, 1, 4, 3, Q("26.25 in")),
    Sketcher.Constraint("DistanceY", 3, 2, -1, 1, 63.096701),
    Sketcher.Constraint("DistanceX", -1, 1, 9, 1, 550.945599),
    Sketcher.Constraint("DistanceY", 9, 1, -1, 1, 122.674401),
    Sketcher.Constraint("DistanceX", -1, 1, 10, 2, 590.6658),
    Sketcher.Constraint("DistanceY", 5, 2, 6, 1, 49.8514),
    Sketcher.Constraint("DistanceX", 7, 2, 5, 2, 78.406002),
    Sketcher.Constraint("DistanceX", 8, 2, 7, 2, 40.2593),
    Sketcher.Constraint("Distance", 1, 24.495522),
    Sketcher.Constraint("Distance", 7, 83.046592),
    Sketcher.Constraint("DistanceX", -1, 1, 1, 2, 540.883041),
    Sketcher.Constraint("DistanceY", 2, 2, -1, 1, 61.30184),
    Sketcher.Constraint("DistanceX", -1, 1, 3, 2, 596.21445),
    Sketcher.Constraint("DistanceY", 5, 2, -1, 1, 133.908618),
    Sketcher.Constraint("DistanceY", 10, 2, -1, 1, 73.148559),
    Sketcher.Constraint("DistanceY", 1, 2, 0, 2, 10.31804),
    Sketcher.Constraint("DistanceX", 2, 2, 0, 2, 57.303859),
    Sketcher.Constraint("DistanceX", 0, 2, 4, 1, 62.85983),
    Sketcher.Constraint("DistanceY", 4, 1, 0, 2, 10.31804),
])
pocket3 = body.newObject("PartDesign::Pocket", "Pocket002")
pocket3.Profile = sketch4
pocket3.Type = "ThroughAll"
doc.recompute()

fillet3 = body.newObject("PartDesign::Fillet", "Fillet002")
fillet3.Base = (pocket3, edges_at(pocket3, [
    (540.883, -18.483, 4.763),
    (563.099, -8.165, 4.763),
    (505.796, -61.302, 4.763),
    (596.214, -63.097, 4.763),
    (625.959, -18.483, 4.763),
    (502.723, -71.403, 4.763),
    (590.666, -73.149, 4.763),
    (550.946, -122.674, 4.763),
    (621.389, -133.909, 4.763),
    (542.983, -148.842, 4.763),
    (594.941, -84.057, 4.763),
]))
fillet3.Radius = Q("0.25 in")

doc.recompute()
